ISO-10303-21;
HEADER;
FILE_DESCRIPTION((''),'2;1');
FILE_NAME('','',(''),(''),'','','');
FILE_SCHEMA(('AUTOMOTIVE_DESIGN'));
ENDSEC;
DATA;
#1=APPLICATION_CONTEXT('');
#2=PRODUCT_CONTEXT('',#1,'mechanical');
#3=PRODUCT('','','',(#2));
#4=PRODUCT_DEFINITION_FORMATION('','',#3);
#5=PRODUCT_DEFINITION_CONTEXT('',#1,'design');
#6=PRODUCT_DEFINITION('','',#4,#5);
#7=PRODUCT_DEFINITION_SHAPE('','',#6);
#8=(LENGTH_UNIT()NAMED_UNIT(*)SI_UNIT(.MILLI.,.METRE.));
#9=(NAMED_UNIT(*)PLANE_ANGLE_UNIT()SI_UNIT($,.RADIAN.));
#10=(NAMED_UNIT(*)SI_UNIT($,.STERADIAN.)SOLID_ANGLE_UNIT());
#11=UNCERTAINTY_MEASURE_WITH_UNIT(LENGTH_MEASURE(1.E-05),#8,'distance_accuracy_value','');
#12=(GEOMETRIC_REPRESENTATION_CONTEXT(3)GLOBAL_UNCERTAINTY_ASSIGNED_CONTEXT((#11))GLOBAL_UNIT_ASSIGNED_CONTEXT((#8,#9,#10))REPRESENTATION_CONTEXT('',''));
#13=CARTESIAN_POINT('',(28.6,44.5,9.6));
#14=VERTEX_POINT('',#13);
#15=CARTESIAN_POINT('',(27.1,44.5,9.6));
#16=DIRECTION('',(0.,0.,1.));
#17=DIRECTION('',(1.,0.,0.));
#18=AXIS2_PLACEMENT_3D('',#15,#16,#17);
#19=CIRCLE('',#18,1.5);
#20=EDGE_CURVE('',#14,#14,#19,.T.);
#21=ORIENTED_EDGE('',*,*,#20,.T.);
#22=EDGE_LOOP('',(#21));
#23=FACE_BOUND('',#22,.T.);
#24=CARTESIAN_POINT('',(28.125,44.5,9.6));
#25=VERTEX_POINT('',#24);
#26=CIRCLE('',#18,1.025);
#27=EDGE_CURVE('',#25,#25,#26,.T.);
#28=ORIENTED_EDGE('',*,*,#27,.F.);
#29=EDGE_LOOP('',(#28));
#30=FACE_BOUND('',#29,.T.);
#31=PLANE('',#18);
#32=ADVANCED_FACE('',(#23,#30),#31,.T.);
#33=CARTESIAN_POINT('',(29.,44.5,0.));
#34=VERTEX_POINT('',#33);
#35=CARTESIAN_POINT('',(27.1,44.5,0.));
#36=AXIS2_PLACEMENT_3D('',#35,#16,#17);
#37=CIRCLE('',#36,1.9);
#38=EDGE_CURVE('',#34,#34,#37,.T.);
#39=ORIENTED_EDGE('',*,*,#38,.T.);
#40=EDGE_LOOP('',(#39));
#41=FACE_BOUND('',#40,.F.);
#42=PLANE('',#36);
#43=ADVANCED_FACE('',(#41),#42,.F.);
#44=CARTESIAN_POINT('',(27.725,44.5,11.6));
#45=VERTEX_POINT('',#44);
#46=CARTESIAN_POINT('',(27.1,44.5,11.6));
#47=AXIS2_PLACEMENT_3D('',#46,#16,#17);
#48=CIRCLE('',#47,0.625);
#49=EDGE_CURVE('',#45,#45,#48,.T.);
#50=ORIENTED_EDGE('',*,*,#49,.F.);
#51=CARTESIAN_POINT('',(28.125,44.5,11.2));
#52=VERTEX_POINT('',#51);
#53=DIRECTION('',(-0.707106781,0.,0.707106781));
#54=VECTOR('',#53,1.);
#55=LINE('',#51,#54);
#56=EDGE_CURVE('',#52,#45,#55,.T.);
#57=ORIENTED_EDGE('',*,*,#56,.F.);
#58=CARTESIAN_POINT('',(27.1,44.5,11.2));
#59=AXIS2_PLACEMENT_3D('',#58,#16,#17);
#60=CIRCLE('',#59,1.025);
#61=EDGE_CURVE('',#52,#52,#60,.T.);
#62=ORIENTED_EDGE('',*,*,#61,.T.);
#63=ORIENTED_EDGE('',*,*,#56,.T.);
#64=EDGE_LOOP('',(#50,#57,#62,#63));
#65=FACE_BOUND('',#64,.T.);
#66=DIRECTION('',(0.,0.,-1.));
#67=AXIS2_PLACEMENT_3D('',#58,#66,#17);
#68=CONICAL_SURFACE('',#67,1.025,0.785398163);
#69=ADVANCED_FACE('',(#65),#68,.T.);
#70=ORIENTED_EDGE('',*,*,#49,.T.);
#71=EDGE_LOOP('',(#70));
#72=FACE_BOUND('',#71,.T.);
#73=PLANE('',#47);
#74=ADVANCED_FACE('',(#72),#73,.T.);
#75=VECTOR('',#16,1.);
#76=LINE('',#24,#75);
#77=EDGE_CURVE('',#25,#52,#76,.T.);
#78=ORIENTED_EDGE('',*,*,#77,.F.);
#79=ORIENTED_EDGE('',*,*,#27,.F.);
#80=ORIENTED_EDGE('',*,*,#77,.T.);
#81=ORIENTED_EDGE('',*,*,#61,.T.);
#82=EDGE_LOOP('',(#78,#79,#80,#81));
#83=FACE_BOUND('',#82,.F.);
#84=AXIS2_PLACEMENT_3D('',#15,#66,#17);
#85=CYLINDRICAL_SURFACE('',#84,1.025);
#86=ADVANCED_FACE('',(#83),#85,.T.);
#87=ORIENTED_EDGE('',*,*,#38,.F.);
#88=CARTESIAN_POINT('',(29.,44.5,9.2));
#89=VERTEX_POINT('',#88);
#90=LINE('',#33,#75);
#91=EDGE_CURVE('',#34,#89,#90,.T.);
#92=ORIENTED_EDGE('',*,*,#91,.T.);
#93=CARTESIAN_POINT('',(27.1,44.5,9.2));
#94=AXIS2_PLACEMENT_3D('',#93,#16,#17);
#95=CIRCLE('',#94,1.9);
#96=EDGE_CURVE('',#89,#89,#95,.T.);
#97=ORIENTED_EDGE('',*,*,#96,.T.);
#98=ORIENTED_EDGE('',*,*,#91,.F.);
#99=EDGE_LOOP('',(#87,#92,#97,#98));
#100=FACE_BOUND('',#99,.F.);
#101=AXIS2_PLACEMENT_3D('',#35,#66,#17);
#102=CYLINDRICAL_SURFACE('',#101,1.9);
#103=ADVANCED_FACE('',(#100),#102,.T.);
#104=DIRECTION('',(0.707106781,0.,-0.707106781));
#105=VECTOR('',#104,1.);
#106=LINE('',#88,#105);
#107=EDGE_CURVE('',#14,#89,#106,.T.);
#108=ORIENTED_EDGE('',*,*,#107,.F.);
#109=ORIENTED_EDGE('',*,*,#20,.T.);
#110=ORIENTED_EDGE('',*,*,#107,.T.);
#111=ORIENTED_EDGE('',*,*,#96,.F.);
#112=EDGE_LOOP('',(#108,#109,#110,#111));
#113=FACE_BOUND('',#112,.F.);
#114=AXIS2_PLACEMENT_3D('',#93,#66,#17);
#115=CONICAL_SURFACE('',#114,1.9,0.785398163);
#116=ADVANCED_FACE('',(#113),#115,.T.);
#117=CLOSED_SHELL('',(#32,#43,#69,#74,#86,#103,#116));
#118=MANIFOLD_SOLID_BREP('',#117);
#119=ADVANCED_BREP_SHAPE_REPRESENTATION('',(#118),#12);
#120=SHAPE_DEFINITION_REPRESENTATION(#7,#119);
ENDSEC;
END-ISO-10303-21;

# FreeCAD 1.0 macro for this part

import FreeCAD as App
import Part
import Sketcher
Q = App.Units.Quantity


def edges_at(feature, points):
    """Names of the edges that pass closest to the given points."""
    edges = feature.Shape.Edges
    near = lambda p: min(range(len(edges)), key=lambda i: edges[i].distToShape(Part.Vertex(*p))[0])
    return sorted({f"Edge{near(p) + 1}" for p in points})

doc = App.newDocument("Part")
body = doc.addObject("PartDesign::Body", "Body")

sketch1 = body.newObject("Sketcher::SketchObject", "Sketch")
sketch1.AttachmentSupport = (doc.getObject("XY_Plane"), [""])
sketch1.MapMode = "FlatFace"
sketch1.addGeometry(Part.Circle(App.Vector(0, 0, 0), App.Vector(0, 0, 1), 1.9), False)
sketch1.addConstraint(Sketcher.Constraint("Coincident", 0, 3, -1, 1))
sketch1.addConstraint(Sketcher.Constraint("Diameter", 0, Q("3.8 mm")))
pad1 = body.newObject("PartDesign::Pad", "Pad")
pad1.Profile = sketch1
pad1.Length = 9.6

sketch2 = body.newObject("Sketcher::SketchObject", "Sketch001")
sketch2.AttachmentSupport = (doc.getObject("XY_Plane"), [""])
sketch2.MapMode = "FlatFace"
sketch2.AttachmentOffset = App.Placement(App.Vector(0, 0, 9.6), App.Rotation())
sketch2.addGeometry(Part.Circle(App.Vector(0, 0, 0), App.Vector(0, 0, 1), 1), False)
sketch2.addConstraint(Sketcher.Constraint("Coincident", 0, 3, -1, 1))
sketch2.addConstraint(Sketcher.Constraint("Diameter", 0, Q("2.05 mm")))
pad2 = body.newObject("PartDesign::Pad", "Pad001")
pad2.Profile = sketch2
pad2.Length = 2
doc.recompute()

chamfer = body.newObject("PartDesign::Chamfer", "Chamfer")
chamfer.Base = (pad2, edges_at(pad2, [(-1.025, 0, 11.6)]))
chamfer.Size = 0.4
doc.recompute()

chamfer2 = body.newObject("PartDesign::Chamfer", "Chamfer001")
chamfer2.Base = (chamfer, edges_at(chamfer, [(-1.9, 0, 9.6)]))
chamfer2.Size = 0.4
body2 = doc.addObject("PartDesign::Body", "Body001")
doc.recompute()

body.Placement = App.Placement(App.Vector(27.1, 44.5, 0), App.Rotation(App.Vector(0, 0, 1), 0))
boolean = body2.newObject("PartDesign::Boolean", "Boolean")
boolean.Type = "Fuse"
boolean.addObjects([body])

doc.recompute()
